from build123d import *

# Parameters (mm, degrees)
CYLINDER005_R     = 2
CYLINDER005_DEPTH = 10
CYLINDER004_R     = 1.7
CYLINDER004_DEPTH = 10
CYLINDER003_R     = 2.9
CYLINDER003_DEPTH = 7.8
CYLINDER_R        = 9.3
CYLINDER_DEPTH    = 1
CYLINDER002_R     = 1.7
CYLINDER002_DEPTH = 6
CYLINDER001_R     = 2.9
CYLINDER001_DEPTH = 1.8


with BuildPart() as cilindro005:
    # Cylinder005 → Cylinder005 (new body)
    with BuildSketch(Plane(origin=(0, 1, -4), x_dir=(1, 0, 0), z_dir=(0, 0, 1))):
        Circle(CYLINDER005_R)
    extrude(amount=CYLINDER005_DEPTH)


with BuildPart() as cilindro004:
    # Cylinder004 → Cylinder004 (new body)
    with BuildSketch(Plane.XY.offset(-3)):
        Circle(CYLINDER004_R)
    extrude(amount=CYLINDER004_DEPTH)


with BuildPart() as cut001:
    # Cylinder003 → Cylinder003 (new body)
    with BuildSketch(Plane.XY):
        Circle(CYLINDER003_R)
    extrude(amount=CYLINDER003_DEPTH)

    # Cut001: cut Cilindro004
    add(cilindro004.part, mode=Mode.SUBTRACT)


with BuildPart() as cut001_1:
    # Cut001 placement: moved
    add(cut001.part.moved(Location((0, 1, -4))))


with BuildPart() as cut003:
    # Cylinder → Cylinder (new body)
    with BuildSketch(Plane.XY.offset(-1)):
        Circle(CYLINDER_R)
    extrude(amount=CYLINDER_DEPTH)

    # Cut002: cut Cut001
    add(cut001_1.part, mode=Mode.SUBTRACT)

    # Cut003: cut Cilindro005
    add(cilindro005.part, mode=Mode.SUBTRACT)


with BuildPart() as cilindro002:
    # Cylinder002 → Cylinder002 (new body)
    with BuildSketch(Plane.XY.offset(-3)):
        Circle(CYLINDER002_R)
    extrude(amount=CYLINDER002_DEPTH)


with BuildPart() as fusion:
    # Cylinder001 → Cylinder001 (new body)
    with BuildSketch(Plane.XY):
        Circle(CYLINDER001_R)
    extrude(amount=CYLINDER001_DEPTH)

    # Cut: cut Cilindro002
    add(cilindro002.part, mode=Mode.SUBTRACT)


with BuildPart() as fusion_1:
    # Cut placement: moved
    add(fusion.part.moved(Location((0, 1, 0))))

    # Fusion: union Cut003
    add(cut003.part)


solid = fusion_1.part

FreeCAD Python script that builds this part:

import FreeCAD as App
import Part
import Sketcher

V = App.Vector

doc = App.newDocument("Part")
body = doc.addObject("PartDesign::Body", "Body")

# Sketch on XY plane
sketch1 = body.newObject("Sketcher::SketchObject", "Sketch")
sketch1.AttachmentSupport = (doc.getObject("XY_Plane"), [""])
sketch1.MapMode = "FlatFace"
sketch1.AttachmentOffset = App.Placement(V(0, 0, -4), App.Rotation())
sketch1.addGeometry(Part.Circle(V(0, 1, 0), V(0, 0, 1), 2), False)
sketch1.addConstraint([
    Sketcher.Constraint("PointOnObject", 0, 3, -2),
    Sketcher.Constraint("Diameter", 0, 4.0),
    Sketcher.Constraint("DistanceY", -1, 1, 0, 3, 1.0),
])
pad1 = body.newObject("PartDesign::Pad", "Pad")
pad1.Profile = sketch1
pad1.Length = 10
body2 = doc.addObject("PartDesign::Body", "Body001")

# Sketch on XY plane
sketch2 = body2.newObject("Sketcher::SketchObject", "Sketch001")
sketch2.AttachmentSupport = (doc.getObject("XY_Plane001"), [""])
sketch2.MapMode = "FlatFace"
sketch2.AttachmentOffset = App.Placement(V(0, 0, -3), App.Rotation())
sketch2.addGeometry(Part.Circle(V(0, 0, 0), V(0, 0, 1), 1.7), False)
sketch2.addConstraint([
    Sketcher.Constraint("Coincident", 0, 3, -1, 1),
    Sketcher.Constraint("Diameter", 0, 3.4),
])
pad2 = body2.newObject("PartDesign::Pad", "Pad001")
pad2.Profile = sketch2
pad2.Length = 10
body3 = doc.addObject("PartDesign::Body", "Body002")

# Sketch on XY plane
sketch3 = body3.newObject("Sketcher::SketchObject", "Sketch002")
sketch3.AttachmentSupport = (doc.getObject("XY_Plane002"), [""])
sketch3.MapMode = "FlatFace"
sketch3.addGeometry(Part.Circle(V(0, 0, 0), V(0, 0, 1), 2.9), False)
sketch3.addConstraint([
    Sketcher.Constraint("Coincident", 0, 3, -1, 1),
    Sketcher.Constraint("Diameter", 0, 5.8),
])
pad3 = body3.newObject("PartDesign::Pad", "Pad002")
pad3.Profile = sketch3
pad3.Length = 7.8
doc.recompute()

boolean = body3.newObject("PartDesign::Boolean", "Boolean")
boolean.Type = "Cut"
boolean.addObjects([body2])
body4 = doc.addObject("PartDesign::Body", "Body003")
doc.recompute()

body3.Placement = App.Placement(V(0, 1, -4), App.Rotation(V(0, 0, 1), 0))
boolean2 = body4.newObject("PartDesign::Boolean", "Boolean001")
boolean2.Type = "Fuse"
boolean2.addObjects([body3])
body5 = doc.addObject("PartDesign::Body", "Body004")
body5.AllowCompound = True

# Sketch on XY plane
sketch4 = body5.newObject("Sketcher::SketchObject", "Sketch003")
sketch4.AttachmentSupport = (doc.getObject("XY_Plane004"), [""])
sketch4.MapMode = "FlatFace"
sketch4.AttachmentOffset = App.Placement(V(0, 0, -1), App.Rotation())
sketch4.addGeometry(Part.Circle(V(0, 0, 0), V(0, 0, 1), 9), False)
sketch4.addConstraint([
    Sketcher.Constraint("Coincident", 0, 3, -1, 1),
    Sketcher.Constraint("Diameter", 0, 18.6),
])
pad4 = body5.newObject("PartDesign::Pad", "Pad003")
pad4.Profile = sketch4
pad4.Length = 1
doc.recompute()

boolean3 = body5.newObject("PartDesign::Boolean", "Boolean002")
boolean3.Type = "Cut"
boolean3.addObjects([body4])
doc.recompute()

boolean4 = body5.newObject("PartDesign::Boolean", "Boolean003")
boolean4.Type = "Cut"
boolean4.addObjects([body])
body6 = doc.addObject("PartDesign::Body", "Body005")

# Sketch on XY plane
sketch5 = body6.newObject("Sketcher::SketchObject", "Sketch004")
sketch5.AttachmentSupport = (doc.getObject("XY_Plane005"), [""])
sketch5.MapMode = "FlatFace"
sketch5.AttachmentOffset = App.Placement(V(0, 0, -3), App.Rotation())
sketch5.addGeometry(Part.Circle(V(0, 0, 0), V(0, 0, 1), 1.7), False)
sketch5.addConstraint([
    Sketcher.Constraint("Coincident", 0, 3, -1, 1),
    Sketcher.Constraint("Diameter", 0, 3.4),
])
pad5 = body6.newObject("PartDesign::Pad", "Pad004")
pad5.Profile = sketch5
pad5.Length = 6
body7 = doc.addObject("PartDesign::Body", "Body006")

# Sketch on XY plane
sketch6 = body7.newObject("Sketcher::SketchObject", "Sketch005")
sketch6.AttachmentSupport = (doc.getObject("XY_Plane006"), [""])
sketch6.MapMode = "FlatFace"
sketch6.addGeometry(Part.Circle(V(0, 0, 0), V(0, 0, 1), 2.9), False)
sketch6.addConstraint([
    Sketcher.Constraint("Coincident", 0, 3, -1, 1),
    Sketcher.Constraint("Diameter", 0, 5.8),
])
pad6 = body7.newObject("PartDesign::Pad", "Pad005")
pad6.Profile = sketch6
pad6.Length = 1.8
doc.recompute()

boolean5 = body7.newObject("PartDesign::Boolean", "Boolean004")
boolean5.Type = "Cut"
boolean5.addObjects([body6])
body8 = doc.addObject("PartDesign::Body", "Body007")
body8.AllowCompound = True
doc.recompute()

body7.Placement = App.Placement(V(0, 1, 0), App.Rotation(V(0, 0, 1), 0))
boolean6 = body8.newObject("PartDesign::Boolean", "Boolean005")
boolean6.Type = "Fuse"
boolean6.addObjects([body7])
doc.recompute()

boolean7 = body8.newObject("PartDesign::Boolean", "Boolean006")
boolean7.Type = "Fuse"
boolean7.addObjects([body5])

doc.recompute()
